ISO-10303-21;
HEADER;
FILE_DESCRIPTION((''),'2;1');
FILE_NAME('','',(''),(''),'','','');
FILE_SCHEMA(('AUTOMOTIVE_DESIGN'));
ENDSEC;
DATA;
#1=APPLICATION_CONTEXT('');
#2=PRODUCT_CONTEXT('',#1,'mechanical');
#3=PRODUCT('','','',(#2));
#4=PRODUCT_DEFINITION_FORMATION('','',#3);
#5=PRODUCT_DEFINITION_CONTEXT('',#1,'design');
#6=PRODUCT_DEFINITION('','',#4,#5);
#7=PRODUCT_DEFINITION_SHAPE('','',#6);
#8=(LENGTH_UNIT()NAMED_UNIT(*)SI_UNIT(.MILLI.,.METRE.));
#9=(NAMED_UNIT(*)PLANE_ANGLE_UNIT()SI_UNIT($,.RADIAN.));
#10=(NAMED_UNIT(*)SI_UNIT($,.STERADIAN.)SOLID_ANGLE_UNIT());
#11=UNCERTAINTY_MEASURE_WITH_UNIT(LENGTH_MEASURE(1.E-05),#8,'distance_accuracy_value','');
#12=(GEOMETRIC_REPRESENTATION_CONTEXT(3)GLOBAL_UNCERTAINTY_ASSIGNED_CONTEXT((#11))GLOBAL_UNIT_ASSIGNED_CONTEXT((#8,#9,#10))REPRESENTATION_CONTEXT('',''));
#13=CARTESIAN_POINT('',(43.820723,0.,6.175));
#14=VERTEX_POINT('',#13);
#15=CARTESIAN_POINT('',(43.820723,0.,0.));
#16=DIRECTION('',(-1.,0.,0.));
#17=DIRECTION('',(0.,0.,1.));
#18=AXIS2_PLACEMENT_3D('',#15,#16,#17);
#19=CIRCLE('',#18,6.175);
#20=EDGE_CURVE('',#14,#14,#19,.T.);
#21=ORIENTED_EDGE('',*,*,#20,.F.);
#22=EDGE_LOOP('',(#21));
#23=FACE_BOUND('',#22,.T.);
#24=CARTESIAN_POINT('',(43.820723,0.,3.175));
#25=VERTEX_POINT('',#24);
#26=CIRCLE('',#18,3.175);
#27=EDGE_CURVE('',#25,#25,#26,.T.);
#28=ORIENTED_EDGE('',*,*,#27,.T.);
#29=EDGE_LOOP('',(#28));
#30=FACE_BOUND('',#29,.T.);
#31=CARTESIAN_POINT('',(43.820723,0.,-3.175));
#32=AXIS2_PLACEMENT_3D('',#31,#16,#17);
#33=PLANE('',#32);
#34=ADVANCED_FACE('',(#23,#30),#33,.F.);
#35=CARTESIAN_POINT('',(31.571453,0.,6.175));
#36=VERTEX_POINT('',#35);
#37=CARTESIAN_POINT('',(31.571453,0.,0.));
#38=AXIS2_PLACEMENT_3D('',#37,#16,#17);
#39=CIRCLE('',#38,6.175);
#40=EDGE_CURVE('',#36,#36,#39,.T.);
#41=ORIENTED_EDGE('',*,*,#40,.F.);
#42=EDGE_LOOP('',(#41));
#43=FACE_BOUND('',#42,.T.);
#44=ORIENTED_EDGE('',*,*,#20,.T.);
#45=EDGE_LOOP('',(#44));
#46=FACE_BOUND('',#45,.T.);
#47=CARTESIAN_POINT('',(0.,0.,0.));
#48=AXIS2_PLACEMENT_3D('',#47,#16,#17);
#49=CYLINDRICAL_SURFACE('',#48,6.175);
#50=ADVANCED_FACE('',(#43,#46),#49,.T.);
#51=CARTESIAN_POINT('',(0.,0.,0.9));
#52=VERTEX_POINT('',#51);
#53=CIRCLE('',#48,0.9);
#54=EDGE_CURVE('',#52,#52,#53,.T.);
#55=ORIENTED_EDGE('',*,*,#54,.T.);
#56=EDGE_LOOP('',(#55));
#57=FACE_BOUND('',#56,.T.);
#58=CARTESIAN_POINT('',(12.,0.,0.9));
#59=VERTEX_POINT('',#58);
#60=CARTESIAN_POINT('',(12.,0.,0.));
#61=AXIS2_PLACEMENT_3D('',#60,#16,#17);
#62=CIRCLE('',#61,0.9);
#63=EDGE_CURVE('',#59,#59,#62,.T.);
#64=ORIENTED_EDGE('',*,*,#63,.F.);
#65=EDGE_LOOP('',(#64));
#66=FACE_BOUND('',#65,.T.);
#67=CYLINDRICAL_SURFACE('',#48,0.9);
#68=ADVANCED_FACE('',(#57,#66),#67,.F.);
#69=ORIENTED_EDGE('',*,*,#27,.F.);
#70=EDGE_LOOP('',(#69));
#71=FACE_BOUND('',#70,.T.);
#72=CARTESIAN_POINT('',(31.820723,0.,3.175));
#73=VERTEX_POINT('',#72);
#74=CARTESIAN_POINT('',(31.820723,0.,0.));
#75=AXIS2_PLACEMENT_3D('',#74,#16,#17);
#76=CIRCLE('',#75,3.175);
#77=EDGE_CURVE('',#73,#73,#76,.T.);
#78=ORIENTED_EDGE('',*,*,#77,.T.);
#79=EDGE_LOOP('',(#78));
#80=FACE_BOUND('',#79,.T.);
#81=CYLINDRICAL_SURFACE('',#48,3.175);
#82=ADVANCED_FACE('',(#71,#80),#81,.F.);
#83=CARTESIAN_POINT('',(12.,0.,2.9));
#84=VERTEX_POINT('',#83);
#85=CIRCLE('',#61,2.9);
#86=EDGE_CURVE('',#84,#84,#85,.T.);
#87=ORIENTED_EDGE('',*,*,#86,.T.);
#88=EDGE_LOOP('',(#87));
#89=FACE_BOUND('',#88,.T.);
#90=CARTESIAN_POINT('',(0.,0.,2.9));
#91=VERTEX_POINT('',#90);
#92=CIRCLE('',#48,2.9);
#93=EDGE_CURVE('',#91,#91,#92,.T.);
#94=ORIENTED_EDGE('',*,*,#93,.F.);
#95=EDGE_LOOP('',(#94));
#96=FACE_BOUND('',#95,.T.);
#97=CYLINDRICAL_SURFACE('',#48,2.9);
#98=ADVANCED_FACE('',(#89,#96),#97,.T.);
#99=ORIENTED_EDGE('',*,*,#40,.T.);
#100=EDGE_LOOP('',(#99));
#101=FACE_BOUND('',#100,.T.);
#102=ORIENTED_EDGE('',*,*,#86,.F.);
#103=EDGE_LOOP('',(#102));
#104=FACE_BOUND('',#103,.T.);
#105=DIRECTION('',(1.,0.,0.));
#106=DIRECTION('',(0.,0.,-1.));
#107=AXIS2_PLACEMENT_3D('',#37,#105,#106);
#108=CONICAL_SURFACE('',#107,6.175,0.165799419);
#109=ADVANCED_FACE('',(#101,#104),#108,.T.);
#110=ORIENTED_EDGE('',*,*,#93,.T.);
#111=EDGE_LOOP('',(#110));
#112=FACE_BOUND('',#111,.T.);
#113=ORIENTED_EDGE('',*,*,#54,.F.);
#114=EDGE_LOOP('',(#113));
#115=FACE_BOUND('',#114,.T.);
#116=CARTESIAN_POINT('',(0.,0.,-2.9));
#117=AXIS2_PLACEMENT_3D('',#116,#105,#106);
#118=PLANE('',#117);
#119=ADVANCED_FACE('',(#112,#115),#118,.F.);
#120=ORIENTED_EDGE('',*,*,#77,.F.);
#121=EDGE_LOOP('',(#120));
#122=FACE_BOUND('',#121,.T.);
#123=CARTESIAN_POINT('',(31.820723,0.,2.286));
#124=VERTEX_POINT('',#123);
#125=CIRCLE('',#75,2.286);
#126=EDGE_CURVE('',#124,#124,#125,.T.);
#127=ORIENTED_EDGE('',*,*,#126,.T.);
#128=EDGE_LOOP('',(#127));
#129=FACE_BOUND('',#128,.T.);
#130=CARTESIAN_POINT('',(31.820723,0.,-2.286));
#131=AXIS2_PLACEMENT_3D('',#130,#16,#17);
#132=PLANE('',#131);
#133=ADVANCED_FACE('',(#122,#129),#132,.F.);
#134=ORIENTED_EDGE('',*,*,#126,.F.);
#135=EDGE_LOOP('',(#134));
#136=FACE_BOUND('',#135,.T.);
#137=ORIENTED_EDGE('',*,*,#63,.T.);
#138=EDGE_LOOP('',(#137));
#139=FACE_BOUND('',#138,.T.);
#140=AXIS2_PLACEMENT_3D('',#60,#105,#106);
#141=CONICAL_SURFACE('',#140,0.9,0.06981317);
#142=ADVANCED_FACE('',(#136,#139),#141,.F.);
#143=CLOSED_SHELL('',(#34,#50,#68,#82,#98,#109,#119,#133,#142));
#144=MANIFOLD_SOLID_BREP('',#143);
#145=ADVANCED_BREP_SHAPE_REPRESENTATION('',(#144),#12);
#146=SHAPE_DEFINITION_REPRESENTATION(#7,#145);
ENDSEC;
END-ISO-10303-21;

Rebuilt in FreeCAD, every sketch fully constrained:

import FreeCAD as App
import Part
import Sketcher

V = App.Vector
Q = App.Units.Quantity

doc = App.newDocument("Part")
body = doc.addObject("PartDesign::Body", "Body")

sketch1 = body.newObject("Sketcher::SketchObject", "Sketch")
sketch1.AttachmentSupport = (doc.getObject("XZ_Plane"), [""])
sketch1.MapMode = "FlatFace"
sketch1.addGeometry([
    Part.LineSegment(V(0, -0.9, 0), V(12, -0.9, 0)),
    Part.LineSegment(V(12, -0.9, 0), V(31.8, -2.3, 0)),
    Part.LineSegment(V(31.8, -2.3, 0), V(31.8, -3.2, 0)),
    Part.LineSegment(V(31.8, -3.2, 0), V(43.8, -3.2, 0)),
    Part.LineSegment(V(43.8, -3.2, 0), V(43.8, -6.2, 0)),
    Part.LineSegment(V(43.8, -6.2, 0), V(31.6, -6.2, 0)),
    Part.LineSegment(V(31.6, -6.2, 0), V(12, -2.9, 0)),
    Part.LineSegment(V(12, -2.9, 0), V(0, -2.9, 0)),
    Part.LineSegment(V(0, -2.9, 0), V(0, -0.9, 0)),
], False)
sketch1.addConstraint([
    Sketcher.Constraint("Coincident", 0, 2, 1, 1),
    Sketcher.Constraint("Coincident", 1, 2, 2, 1),
    Sketcher.Constraint("Coincident", 2, 2, 3, 1),
    Sketcher.Constraint("Coincident", 3, 2, 4, 1),
    Sketcher.Constraint("Coincident", 4, 2, 5, 1),
    Sketcher.Constraint("Coincident", 5, 2, 6, 1),
    Sketcher.Constraint("Coincident", 6, 2, 7, 1),
    Sketcher.Constraint("Coincident", 7, 2, 8, 1),
    Sketcher.Constraint("Coincident", 8, 2, 0, 1),
    Sketcher.Constraint("Horizontal", 0),
    Sketcher.Constraint("Vertical", 2),
    Sketcher.Constraint("Horizontal", 3),
    Sketcher.Constraint("Vertical", 4),
    Sketcher.Constraint("Horizontal", 5),
    Sketcher.Constraint("Horizontal", 7),
    Sketcher.Constraint("Vertical", 8),
    Sketcher.Constraint("PointOnObject", 7, 2, -2),
    Sketcher.Constraint("Vertical", 0, 2, 6, 2),
    Sketcher.Constraint("Equal", 0, 3),
    Sketcher.Constraint("DistanceX", 0, 1, 0, 2, Q("12 mm")),
    Sketcher.Constraint("DistanceY", 4, 2, 4, 1, Q("3 mm")),
    Sketcher.Constraint("DistanceY", 8, 1, 8, 2, Q("2 mm")),
    Sketcher.Constraint("Angle", 1, Q("-4 deg")),
    Sketcher.Constraint("DistanceY", 0, 2, -1, 1, Q("0.9 mm")),
    Sketcher.Constraint("DistanceY", 2, 2, 2, 1, Q("0.889 mm")),
    Sketcher.Constraint("DistanceY", 1, 2, -1, 1, Q("2.286 mm")),
    Sketcher.Constraint("DistanceX", 5, 2, 5, 1, Q("12.24927 mm")),
])
revolution = body.newObject("PartDesign::Revolution", "Revolution")
revolution.Profile = sketch1
revolution.ReferenceAxis = (sketch1, ["H_Axis"])
revolution.Angle = 360

doc.recompute()
